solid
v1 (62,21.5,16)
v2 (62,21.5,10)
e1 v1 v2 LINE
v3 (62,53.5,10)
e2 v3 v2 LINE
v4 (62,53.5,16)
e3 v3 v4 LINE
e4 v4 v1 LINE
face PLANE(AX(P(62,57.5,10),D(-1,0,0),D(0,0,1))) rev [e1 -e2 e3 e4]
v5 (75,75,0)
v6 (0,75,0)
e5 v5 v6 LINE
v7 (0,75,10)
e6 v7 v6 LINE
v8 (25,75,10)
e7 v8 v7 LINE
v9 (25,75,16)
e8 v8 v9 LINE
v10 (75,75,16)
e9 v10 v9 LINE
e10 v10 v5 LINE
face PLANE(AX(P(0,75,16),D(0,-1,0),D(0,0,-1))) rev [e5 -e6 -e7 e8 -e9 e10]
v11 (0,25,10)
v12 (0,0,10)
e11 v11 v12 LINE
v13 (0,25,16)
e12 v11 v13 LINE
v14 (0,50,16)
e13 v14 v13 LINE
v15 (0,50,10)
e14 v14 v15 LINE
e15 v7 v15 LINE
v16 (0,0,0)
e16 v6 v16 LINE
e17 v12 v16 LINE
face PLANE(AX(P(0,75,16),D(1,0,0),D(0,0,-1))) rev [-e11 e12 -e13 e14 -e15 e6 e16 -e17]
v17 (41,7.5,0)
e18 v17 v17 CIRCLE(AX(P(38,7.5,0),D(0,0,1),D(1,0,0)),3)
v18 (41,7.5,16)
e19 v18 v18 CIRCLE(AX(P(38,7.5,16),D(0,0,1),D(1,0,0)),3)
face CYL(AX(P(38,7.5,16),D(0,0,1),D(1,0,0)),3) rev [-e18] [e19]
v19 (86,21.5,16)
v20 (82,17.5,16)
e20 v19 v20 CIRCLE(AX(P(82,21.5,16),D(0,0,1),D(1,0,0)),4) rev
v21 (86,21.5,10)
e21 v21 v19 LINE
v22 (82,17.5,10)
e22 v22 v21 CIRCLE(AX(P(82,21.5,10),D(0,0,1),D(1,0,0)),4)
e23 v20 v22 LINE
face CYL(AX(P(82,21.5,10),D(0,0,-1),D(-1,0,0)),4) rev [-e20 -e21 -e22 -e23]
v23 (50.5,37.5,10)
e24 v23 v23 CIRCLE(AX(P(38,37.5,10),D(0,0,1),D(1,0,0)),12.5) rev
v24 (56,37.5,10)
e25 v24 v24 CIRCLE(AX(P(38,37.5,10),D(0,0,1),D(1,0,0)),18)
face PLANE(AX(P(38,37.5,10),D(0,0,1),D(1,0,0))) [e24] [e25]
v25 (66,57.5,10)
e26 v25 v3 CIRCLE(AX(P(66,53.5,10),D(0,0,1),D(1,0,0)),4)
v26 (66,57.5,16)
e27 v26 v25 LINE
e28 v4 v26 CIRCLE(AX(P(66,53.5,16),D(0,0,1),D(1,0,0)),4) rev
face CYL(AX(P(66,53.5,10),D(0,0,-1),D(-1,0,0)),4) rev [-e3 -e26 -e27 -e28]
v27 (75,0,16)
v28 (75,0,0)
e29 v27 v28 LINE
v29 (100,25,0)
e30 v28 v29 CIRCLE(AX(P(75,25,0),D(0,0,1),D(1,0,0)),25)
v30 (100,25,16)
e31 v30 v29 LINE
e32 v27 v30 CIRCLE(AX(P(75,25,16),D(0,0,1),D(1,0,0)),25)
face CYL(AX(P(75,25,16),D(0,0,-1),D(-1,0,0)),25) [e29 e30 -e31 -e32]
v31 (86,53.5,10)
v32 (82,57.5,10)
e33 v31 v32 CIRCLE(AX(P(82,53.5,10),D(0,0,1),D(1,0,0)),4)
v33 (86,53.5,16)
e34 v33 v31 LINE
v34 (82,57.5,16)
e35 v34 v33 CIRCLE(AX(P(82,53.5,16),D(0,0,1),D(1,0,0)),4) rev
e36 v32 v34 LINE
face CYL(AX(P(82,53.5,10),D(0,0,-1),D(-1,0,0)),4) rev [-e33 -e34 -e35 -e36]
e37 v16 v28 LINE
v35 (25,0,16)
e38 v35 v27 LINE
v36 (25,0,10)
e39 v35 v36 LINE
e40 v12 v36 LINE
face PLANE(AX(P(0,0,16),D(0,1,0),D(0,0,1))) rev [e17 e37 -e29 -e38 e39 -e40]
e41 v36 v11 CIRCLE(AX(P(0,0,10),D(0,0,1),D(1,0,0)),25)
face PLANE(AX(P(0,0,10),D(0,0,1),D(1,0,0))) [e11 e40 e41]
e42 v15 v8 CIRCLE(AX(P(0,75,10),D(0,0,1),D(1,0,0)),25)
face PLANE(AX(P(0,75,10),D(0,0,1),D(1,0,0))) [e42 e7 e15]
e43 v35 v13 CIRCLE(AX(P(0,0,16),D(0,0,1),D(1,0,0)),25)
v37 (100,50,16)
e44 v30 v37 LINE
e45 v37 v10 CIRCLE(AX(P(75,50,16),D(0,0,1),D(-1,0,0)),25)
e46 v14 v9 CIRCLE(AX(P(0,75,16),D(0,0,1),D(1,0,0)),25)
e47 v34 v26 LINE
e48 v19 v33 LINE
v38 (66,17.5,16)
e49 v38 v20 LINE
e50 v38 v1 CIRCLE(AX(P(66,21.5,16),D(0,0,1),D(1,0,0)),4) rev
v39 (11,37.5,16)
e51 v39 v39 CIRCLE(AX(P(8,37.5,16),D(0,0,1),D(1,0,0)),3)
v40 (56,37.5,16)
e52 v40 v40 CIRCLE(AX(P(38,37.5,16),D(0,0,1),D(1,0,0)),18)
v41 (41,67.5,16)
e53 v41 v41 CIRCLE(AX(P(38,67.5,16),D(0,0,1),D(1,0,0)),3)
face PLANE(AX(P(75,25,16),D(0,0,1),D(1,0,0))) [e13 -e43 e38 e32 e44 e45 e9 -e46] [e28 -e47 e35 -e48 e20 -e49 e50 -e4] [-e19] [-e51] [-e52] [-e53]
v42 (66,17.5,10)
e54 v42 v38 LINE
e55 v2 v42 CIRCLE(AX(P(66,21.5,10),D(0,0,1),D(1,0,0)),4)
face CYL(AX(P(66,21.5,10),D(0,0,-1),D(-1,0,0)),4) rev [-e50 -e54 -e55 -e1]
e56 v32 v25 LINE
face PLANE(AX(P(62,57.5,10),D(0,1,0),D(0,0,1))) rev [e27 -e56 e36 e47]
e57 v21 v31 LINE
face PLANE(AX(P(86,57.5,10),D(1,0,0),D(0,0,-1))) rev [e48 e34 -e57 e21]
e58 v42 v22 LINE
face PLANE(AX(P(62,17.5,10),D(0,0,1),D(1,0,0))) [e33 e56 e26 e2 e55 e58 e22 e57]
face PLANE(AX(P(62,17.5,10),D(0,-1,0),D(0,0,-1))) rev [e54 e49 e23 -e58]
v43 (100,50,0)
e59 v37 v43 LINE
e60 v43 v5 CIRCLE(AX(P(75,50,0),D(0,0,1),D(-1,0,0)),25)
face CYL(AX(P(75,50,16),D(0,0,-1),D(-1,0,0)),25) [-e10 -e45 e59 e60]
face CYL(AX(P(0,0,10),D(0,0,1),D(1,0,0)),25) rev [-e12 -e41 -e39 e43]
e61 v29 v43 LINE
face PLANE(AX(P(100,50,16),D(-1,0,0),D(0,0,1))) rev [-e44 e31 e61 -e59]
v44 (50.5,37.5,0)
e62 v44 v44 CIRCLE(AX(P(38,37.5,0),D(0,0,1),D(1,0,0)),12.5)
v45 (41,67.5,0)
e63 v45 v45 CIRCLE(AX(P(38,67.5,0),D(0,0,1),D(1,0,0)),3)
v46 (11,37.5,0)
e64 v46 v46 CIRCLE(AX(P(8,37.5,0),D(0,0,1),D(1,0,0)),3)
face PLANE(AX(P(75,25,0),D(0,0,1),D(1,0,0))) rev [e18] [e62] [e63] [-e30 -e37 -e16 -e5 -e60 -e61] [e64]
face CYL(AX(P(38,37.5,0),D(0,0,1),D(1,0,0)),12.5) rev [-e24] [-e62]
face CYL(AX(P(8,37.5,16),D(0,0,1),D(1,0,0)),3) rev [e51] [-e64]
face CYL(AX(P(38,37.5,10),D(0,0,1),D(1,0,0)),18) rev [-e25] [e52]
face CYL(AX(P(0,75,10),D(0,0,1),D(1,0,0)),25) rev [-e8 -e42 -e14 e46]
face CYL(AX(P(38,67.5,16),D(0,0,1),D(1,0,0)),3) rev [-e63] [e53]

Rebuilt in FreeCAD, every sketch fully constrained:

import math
import FreeCAD as App
import Part
import Sketcher


def edges_at(feature, points):
    """Names of the edges that pass closest to the given points."""
    edges = feature.Shape.Edges
    near = lambda p: min(range(len(edges)), key=lambda i: edges[i].distToShape(Part.Vertex(*p))[0])
    return sorted({f"Edge{near(p) + 1}" for p in points})

doc = App.newDocument("Part")
body = doc.addObject("PartDesign::Body", "Body")

# Sketch on XY plane
sketch1 = body.newObject("Sketcher::SketchObject", "Sketch")
sketch1.AttachmentSupport = (doc.getObject("XY_Plane"), [""])
sketch1.MapMode = "FlatFace"
sketch1.addGeometry(Part.LineSegment(App.Vector(75, 75, 0), App.Vector(0, 75, 0)), False)
sketch1.addGeometry(Part.LineSegment(App.Vector(0, 75, 0), App.Vector(0, 0, 0)), False)
sketch1.addGeometry(Part.LineSegment(App.Vector(0, 0, 0), App.Vector(75, 0, 0)), False)
sketch1.addGeometry(Part.ArcOfCircle(Part.Circle(App.Vector(75, 25, 0), App.Vector(0, 0, 1), 25), math.radians(-90), math.radians(0)), False)
sketch1.addGeometry(Part.LineSegment(App.Vector(100, 25, 0), App.Vector(100, 50, 0)), False)
sketch1.addGeometry(Part.ArcOfCircle(Part.Circle(App.Vector(75, 50, 0), App.Vector(0, 0, 1), 25), math.radians(0), math.radians(90)), False)
sketch1.addConstraint(Sketcher.Constraint("Coincident", 0, 2, 1, 1))
sketch1.addConstraint(Sketcher.Constraint("Coincident", 1, 2, 2, 1))
sketch1.addConstraint(Sketcher.Constraint("Tangent", 2, 2, 3, 1))
sketch1.addConstraint(Sketcher.Constraint("Tangent", 3, 2, 4, 1))
sketch1.addConstraint(Sketcher.Constraint("Tangent", 4, 2, 5, 1))
sketch1.addConstraint(Sketcher.Constraint("Tangent", 5, 2, 0, 1))
sketch1.addConstraint(Sketcher.Constraint("Horizontal", 0))
sketch1.addConstraint(Sketcher.Constraint("Vertical", 1))
sketch1.addConstraint(Sketcher.Constraint("Horizontal", 2))
sketch1.addConstraint(Sketcher.Constraint("Vertical", 4))
sketch1.addConstraint(Sketcher.Constraint("Coincident", 1, 2, -1, 1))
sketch1.addConstraint(Sketcher.Constraint("Equal", 3, 5))
sketch1.addConstraint(Sketcher.Constraint("Equal", 2, 1))
sketch1.addConstraint(Sketcher.Constraint("Radius", 3, 25.0))
sketch1.addConstraint(Sketcher.Constraint("DistanceX", 0, 2, 0, 1, 75.0))
pad1 = body.newObject("PartDesign::Pad", "Pad")
pad1.Profile = sketch1
pad1.Length = 16

# Sketch on XY plane
sketch2 = body.newObject("Sketcher::SketchObject", "Sketch001")
sketch2.AttachmentSupport = (doc.getObject("XY_Plane"), [""])
sketch2.MapMode = "FlatFace"
sketch2.AttachmentOffset = App.Placement(App.Vector(0, 0, 16), App.Rotation())
sketch2.addGeometry(Part.Circle(App.Vector(38, 38, 0), App.Vector(0, 0, 1), 12), False)
sketch2.addConstraint(Sketcher.Constraint("Diameter", 0, 25.0))
sketch2.addConstraint(Sketcher.Constraint("DistanceX", -1, 1, 0, 3, 38.0))
sketch2.addConstraint(Sketcher.Constraint("DistanceY", -1, 1, 0, 3, 37.5))
pocket1 = body.newObject("PartDesign::Pocket", "Pocket")
pocket1.Profile = sketch2
pocket1.Type = "ThroughAll"

# Sketch on XY plane
sketch3 = body.newObject("Sketcher::SketchObject", "Sketch002")
sketch3.AttachmentSupport = (doc.getObject("XY_Plane"), [""])
sketch3.MapMode = "FlatFace"
sketch3.AttachmentOffset = App.Placement(App.Vector(0, 0, 16), App.Rotation())
sketch3.addGeometry(Part.Circle(App.Vector(38, 38, 0), App.Vector(0, 0, 1), 18), False)
sketch3.addConstraint(Sketcher.Constraint("Diameter", 0, 36.0))
sketch3.addConstraint(Sketcher.Constraint("DistanceX", -1, 1, 0, 3, 38.0))
sketch3.addConstraint(Sketcher.Constraint("DistanceY", -1, 1, 0, 3, 37.5))
pocket2 = body.newObject("PartDesign::Pocket", "Pocket001")
pocket2.Profile = sketch3
pocket2.Length = 6

# Sketch on XY plane
sketch4 = body.newObject("Sketcher::SketchObject", "Sketch003")
sketch4.AttachmentSupport = (doc.getObject("XY_Plane"), [""])
sketch4.MapMode = "FlatFace"
sketch4.AttachmentOffset = App.Placement(App.Vector(0, 0, 16), App.Rotation())
sketch4.addGeometry(Part.LineSegment(App.Vector(62, 58, 0), App.Vector(62, 18, 0)), False)
sketch4.addGeometry(Part.LineSegment(App.Vector(62, 18, 0), App.Vector(86, 18, 0)), False)
sketch4.addGeometry(Part.LineSegment(App.Vector(86, 18, 0), App.Vector(86, 58, 0)), False)
sketch4.addGeometry(Part.LineSegment(App.Vector(86, 58, 0), App.Vector(62, 58, 0)), False)
sketch4.addConstraint(Sketcher.Constraint("Coincident", 0, 2, 1, 1))
sketch4.addConstraint(Sketcher.Constraint("Coincident", 1, 2, 2, 1))
sketch4.addConstraint(Sketcher.Constraint("Coincident", 2, 2, 3, 1))
sketch4.addConstraint(Sketcher.Constraint("Coincident", 3, 2, 0, 1))
sketch4.addConstraint(Sketcher.Constraint("Vertical", 0))
sketch4.addConstraint(Sketcher.Constraint("Horizontal", 1))
sketch4.addConstraint(Sketcher.Constraint("Vertical", 2))
sketch4.addConstraint(Sketcher.Constraint("Horizontal", 3))
sketch4.addConstraint(Sketcher.Constraint("DistanceX", 1, 1, 1, 2, 24.0))
sketch4.addConstraint(Sketcher.Constraint("DistanceY", 0, 2, 0, 1, 40.0))
sketch4.addConstraint(Sketcher.Constraint("DistanceX", -1, 1, 0, 2, 62.0))
sketch4.addConstraint(Sketcher.Constraint("DistanceY", -1, 1, 0, 2, 17.5))
pocket3 = body.newObject("PartDesign::Pocket", "Pocket002")
pocket3.Profile = sketch4
pocket3.Length = 6
doc.recompute()

fillet = body.newObject("PartDesign::Fillet", "Fillet")
fillet.Base = (pocket3, edges_at(pocket3, [
    (62, 17.5, 13),
    (62, 57.5, 13),
    (86, 57.5, 13),
    (86, 17.5, 13),
]))
fillet.Radius = 4

# Sketch on XY plane
sketch5 = body.newObject("Sketcher::SketchObject", "Sketch004")
sketch5.AttachmentSupport = (doc.getObject("XY_Plane"), [""])
sketch5.MapMode = "FlatFace"
sketch5.AttachmentOffset = App.Placement(App.Vector(0, 0, 16), App.Rotation())
sketch5.addGeometry(Part.Circle(App.Vector(38, 67.5, 0), App.Vector(0, 0, 1), 3), False)
sketch5.addGeometry(Part.Circle(App.Vector(8, 37.5, 0), App.Vector(0, 0, 1), 3), False)
sketch5.addGeometry(Part.Circle(App.Vector(38, 7.5, 0), App.Vector(0, 0, 1), 3), False)
sketch5.addConstraint(Sketcher.Constraint("Equal", 0, 1))
sketch5.addConstraint(Sketcher.Constraint("Equal", 1, 2))
sketch5.addConstraint(Sketcher.Constraint("Vertical", 0, 3, 2, 3))
sketch5.addConstraint(Sketcher.Constraint("Diameter", 0, 6.0))
sketch5.addConstraint(Sketcher.Constraint("DistanceX", -1, 1, 0, 3, 38.0))
sketch5.addConstraint(Sketcher.Constraint("DistanceX", -1, 1, 1, 3, 8.0))
sketch5.addConstraint(Sketcher.Constraint("DistanceY", 1, 3, 0, 3, 30.0))
sketch5.addConstraint(Sketcher.Constraint("DistanceY", 2, 3, 1, 3, 30.0))
sketch5.addConstraint(Sketcher.Constraint("DistanceY", -1, 1, 0, 3, 67.5))
doc.recompute()
hole = body.newObject("PartDesign::Hole", "Hole")
hole.Profile = sketch5
hole.ThreadType = "None"
hole.Diameter = 6
hole.DepthType = "ThroughAll"

# Sketch on XY plane
sketch6 = body.newObject("Sketcher::SketchObject", "Sketch005")
sketch6.AttachmentSupport = (doc.getObject("XY_Plane"), [""])
sketch6.MapMode = "FlatFace"
sketch6.AttachmentOffset = App.Placement(App.Vector(0, 0, 16), App.Rotation())
sketch6.addGeometry(Part.Circle(App.Vector(0, 75, 0), App.Vector(0, 0, 1), 25), False)
sketch6.addGeometry(Part.Circle(App.Vector(0, 0, 0), App.Vector(0, 0, 1), 25), False)
sketch6.addConstraint(Sketcher.Constraint("Coincident", 1, 3, -1, 1))
sketch6.addConstraint(Sketcher.Constraint("Equal", 0, 1))
sketch6.addConstraint(Sketcher.Constraint("PointOnObject", 0, 3, -2))
sketch6.addConstraint(Sketcher.Constraint("Diameter", 0, 50.0))
sketch6.addConstraint(Sketcher.Constraint("DistanceY", -1, 1, 0, 3, 75.0))
pocket4 = body.newObject("PartDesign::Pocket", "Pocket003")
pocket4.Profile = sketch6
pocket4.Length = 6

doc.recompute()
